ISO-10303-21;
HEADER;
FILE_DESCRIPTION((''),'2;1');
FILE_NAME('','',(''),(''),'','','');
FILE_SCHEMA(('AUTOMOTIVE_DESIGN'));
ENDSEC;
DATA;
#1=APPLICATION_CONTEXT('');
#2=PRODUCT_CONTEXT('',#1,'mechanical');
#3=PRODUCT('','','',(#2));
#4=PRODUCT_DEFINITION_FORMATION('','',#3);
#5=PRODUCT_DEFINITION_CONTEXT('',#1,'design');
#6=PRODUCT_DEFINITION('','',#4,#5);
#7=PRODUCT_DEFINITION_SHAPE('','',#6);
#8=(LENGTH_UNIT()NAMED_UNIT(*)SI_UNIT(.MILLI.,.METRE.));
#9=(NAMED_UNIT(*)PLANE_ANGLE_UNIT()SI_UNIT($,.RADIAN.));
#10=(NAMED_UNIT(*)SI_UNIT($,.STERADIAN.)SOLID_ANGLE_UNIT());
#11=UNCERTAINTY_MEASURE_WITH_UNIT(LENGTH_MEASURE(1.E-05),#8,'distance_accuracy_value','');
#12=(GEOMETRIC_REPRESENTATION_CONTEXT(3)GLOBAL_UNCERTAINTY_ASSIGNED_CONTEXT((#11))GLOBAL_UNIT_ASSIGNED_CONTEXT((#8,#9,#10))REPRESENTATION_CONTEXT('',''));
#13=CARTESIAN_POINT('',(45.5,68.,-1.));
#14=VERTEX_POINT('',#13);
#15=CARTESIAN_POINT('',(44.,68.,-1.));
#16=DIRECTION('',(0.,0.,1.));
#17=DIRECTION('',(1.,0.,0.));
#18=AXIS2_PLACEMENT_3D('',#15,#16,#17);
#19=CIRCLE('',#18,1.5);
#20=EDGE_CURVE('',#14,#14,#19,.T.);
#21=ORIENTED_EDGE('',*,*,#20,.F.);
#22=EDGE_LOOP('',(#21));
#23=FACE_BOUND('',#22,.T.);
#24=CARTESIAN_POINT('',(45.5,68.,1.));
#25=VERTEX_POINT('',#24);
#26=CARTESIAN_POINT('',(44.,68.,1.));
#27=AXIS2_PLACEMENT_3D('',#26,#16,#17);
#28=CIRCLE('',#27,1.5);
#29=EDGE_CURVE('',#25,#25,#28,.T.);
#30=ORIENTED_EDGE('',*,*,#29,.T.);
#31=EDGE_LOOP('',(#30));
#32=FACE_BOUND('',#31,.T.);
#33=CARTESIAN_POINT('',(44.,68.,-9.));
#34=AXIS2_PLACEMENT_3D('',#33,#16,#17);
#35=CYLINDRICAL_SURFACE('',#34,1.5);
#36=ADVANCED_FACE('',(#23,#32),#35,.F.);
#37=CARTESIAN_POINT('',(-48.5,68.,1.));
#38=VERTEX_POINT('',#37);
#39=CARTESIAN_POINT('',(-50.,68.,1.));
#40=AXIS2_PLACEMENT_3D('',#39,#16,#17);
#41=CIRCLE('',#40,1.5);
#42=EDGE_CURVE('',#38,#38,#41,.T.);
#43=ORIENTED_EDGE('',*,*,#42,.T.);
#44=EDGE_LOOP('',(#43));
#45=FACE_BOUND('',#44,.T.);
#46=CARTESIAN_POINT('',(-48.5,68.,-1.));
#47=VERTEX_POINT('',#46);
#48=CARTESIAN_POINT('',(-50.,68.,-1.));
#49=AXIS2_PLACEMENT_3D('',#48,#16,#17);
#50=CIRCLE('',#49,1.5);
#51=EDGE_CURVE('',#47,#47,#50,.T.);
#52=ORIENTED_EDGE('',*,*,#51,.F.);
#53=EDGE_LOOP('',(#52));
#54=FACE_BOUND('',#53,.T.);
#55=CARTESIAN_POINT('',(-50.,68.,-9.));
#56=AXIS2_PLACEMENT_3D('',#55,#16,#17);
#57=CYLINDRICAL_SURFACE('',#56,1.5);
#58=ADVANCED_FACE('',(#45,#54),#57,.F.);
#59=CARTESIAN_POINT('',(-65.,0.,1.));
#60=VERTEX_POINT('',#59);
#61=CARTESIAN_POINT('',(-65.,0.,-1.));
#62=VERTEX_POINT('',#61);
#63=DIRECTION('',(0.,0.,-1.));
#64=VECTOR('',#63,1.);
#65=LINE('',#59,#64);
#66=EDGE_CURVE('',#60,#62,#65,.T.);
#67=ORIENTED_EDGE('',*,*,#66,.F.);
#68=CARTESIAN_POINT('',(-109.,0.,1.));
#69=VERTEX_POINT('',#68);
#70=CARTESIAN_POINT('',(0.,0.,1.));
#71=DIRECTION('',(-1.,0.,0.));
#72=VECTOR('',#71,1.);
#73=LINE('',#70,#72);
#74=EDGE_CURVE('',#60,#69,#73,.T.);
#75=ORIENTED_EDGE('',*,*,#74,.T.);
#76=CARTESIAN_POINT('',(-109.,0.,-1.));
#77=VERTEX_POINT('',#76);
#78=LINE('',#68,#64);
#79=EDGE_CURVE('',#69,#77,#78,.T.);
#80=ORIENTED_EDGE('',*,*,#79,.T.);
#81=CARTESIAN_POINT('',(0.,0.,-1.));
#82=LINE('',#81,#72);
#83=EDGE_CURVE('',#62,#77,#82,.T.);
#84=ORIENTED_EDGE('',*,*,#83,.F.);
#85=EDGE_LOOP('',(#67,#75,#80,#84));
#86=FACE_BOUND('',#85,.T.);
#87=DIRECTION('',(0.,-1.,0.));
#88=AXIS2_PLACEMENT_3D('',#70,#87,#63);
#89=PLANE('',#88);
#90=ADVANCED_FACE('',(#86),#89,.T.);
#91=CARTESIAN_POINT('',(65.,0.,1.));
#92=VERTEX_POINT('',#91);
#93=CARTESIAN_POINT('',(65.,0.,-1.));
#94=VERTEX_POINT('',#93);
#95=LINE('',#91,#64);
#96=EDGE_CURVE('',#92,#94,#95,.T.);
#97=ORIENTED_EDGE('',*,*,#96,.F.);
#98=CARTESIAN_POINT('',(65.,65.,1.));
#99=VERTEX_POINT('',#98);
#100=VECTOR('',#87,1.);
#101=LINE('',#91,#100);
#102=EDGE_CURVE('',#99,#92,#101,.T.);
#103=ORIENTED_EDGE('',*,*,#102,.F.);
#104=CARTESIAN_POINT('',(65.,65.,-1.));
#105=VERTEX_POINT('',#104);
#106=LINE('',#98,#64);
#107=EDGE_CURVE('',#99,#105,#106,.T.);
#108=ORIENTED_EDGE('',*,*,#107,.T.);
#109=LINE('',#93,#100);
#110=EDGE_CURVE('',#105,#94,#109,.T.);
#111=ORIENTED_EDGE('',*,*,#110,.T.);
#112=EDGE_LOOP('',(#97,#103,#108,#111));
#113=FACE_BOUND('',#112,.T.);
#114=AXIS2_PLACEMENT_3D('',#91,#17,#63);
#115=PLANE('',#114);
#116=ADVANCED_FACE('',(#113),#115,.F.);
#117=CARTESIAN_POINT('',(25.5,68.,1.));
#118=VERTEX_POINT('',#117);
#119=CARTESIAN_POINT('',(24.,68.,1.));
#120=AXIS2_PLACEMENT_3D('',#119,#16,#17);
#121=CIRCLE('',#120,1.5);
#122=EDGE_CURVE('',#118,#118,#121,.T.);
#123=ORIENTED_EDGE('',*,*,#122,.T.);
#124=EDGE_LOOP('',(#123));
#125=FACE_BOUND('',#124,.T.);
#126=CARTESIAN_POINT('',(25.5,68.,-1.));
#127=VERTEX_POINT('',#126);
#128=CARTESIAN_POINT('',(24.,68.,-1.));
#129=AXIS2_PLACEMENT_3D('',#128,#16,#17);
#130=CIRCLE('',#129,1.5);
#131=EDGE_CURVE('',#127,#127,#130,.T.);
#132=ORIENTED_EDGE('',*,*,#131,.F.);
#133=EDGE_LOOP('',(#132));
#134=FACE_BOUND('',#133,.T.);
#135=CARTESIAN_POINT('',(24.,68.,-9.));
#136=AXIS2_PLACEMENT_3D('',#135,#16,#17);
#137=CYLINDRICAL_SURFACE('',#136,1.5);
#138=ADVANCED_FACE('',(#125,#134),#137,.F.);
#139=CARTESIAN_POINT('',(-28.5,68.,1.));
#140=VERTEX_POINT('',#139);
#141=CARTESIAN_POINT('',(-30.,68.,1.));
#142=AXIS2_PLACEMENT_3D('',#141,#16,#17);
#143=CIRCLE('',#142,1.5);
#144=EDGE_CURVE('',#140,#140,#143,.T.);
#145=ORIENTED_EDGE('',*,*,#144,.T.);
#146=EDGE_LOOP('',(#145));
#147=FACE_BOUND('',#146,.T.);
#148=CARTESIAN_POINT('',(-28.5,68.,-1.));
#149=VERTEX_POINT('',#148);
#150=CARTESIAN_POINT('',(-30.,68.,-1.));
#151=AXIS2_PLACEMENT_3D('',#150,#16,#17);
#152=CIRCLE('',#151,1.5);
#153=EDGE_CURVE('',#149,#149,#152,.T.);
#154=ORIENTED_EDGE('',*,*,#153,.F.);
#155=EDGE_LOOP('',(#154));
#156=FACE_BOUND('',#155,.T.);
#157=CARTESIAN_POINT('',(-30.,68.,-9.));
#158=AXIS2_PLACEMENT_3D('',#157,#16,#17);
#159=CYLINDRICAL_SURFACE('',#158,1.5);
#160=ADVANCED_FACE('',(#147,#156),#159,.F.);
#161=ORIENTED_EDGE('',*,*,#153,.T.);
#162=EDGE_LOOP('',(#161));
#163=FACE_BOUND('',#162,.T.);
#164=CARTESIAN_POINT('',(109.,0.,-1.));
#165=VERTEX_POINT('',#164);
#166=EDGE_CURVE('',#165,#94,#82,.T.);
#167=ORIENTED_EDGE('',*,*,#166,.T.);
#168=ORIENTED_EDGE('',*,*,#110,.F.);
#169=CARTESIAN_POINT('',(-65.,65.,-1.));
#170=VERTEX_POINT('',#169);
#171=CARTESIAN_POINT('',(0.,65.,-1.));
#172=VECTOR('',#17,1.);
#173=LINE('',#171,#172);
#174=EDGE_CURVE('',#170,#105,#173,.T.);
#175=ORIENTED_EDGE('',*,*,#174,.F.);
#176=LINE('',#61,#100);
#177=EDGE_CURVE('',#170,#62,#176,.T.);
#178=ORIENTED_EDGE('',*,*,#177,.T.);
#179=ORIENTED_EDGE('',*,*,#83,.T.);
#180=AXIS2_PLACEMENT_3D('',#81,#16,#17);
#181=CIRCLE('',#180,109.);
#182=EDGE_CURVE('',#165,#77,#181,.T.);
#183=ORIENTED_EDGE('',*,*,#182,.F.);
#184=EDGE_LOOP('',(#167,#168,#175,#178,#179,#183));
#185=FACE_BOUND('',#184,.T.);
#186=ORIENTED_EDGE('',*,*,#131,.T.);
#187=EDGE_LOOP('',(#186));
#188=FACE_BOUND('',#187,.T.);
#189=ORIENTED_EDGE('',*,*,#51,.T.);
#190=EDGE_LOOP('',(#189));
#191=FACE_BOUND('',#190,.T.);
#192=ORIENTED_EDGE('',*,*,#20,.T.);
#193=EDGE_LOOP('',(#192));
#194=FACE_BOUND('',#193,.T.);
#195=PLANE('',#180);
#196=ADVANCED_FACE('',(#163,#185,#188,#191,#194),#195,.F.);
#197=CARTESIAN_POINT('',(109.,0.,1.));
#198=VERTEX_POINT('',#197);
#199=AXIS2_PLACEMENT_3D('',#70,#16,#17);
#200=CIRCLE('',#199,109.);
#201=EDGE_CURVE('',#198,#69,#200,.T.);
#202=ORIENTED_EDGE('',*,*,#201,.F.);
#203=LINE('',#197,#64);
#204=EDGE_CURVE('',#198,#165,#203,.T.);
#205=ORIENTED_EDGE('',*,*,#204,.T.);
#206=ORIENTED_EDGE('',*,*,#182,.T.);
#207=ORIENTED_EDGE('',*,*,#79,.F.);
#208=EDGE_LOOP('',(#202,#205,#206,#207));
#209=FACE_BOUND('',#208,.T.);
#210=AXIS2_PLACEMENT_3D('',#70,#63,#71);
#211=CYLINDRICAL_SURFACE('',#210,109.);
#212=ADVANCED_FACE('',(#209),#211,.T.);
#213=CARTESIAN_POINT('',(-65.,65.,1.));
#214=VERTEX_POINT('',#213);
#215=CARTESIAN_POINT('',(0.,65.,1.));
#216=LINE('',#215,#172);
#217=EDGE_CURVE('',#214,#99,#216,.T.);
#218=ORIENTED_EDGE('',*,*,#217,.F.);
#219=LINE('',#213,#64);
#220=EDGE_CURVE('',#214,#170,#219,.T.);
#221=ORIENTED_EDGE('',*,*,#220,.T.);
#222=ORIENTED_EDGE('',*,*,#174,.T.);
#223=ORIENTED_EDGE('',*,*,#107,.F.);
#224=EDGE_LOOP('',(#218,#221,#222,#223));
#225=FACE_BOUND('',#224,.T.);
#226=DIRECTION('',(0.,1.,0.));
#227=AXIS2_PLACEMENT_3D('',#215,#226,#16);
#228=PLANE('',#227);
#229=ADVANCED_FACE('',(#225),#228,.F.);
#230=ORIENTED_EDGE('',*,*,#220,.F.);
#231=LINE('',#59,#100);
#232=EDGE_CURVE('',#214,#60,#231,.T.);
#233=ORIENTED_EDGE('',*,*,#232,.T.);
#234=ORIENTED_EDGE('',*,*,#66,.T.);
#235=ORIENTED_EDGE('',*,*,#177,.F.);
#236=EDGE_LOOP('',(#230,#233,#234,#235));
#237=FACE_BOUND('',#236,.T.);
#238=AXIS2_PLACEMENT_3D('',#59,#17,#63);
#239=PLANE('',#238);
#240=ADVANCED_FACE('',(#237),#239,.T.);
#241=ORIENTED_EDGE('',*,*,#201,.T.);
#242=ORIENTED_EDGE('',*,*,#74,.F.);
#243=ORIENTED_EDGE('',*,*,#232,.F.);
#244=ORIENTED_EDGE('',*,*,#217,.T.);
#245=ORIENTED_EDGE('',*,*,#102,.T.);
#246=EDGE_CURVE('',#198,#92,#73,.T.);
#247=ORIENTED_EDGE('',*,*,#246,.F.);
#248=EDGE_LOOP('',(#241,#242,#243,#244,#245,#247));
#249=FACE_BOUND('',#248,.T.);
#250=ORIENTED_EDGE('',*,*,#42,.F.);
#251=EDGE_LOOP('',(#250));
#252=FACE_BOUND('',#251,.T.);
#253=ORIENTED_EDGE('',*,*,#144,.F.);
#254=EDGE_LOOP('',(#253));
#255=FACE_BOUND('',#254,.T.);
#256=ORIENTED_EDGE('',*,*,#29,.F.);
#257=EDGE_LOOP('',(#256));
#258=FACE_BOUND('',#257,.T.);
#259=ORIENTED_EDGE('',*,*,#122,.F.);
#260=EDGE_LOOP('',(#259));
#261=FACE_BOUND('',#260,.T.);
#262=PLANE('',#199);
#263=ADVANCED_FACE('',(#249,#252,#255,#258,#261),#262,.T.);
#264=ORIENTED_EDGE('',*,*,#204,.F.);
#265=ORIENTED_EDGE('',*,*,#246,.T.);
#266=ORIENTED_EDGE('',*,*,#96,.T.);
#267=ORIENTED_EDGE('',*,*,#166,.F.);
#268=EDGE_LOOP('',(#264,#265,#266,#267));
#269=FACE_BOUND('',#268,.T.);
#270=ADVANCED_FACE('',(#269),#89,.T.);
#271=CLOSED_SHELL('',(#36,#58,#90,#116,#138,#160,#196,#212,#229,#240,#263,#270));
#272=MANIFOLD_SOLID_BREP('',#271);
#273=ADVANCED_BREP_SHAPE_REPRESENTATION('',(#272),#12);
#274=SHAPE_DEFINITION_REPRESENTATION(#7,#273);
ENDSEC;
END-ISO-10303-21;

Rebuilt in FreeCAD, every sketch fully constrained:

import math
import FreeCAD as App
import Part
import Sketcher
Q = App.Units.Quantity

doc = App.newDocument("Part")
body = doc.addObject("PartDesign::Body", "Body")

# Sketch on XY plane
sketch1 = body.newObject("Sketcher::SketchObject", "Sketch")
sketch1.AttachmentSupport = (doc.getObject("XY_Plane"), [""])
sketch1.MapMode = "FlatFace"
sketch1.addGeometry([
    Part.ArcOfCircle(Part.Circle(App.Vector(0, 0, 0), App.Vector(0, 0, 1), 109), math.radians(0), math.radians(180)),  # 0
    Part.LineSegment(App.Vector(-109, 0, 0), App.Vector(-65, 0, 0)),  # 1
    Part.LineSegment(App.Vector(-65, 0, 0), App.Vector(-65, 65, 0)),  # 2
    Part.LineSegment(App.Vector(-65, 65, 0), App.Vector(65, 65, 0)),  # 3
    Part.LineSegment(App.Vector(65, 65, 0), App.Vector(65, 0, 0)),  # 4
    Part.LineSegment(App.Vector(65, 0, 0), App.Vector(109, 0, 0)),  # 5
], False)
sketch1.addConstraint([
    Sketcher.Constraint("Coincident", 0, 2, 1, 1),
    Sketcher.Constraint("Coincident", 1, 2, 2, 1),
    Sketcher.Constraint("Coincident", 2, 2, 3, 1),
    Sketcher.Constraint("Coincident", 3, 2, 4, 1),
    Sketcher.Constraint("Coincident", 4, 2, 5, 1),
    Sketcher.Constraint("Coincident", 5, 2, 0, 1),
    Sketcher.Constraint("Horizontal", 1),
    Sketcher.Constraint("Vertical", 2),
    Sketcher.Constraint("Horizontal", 3),
    Sketcher.Constraint("Vertical", 4),
    Sketcher.Constraint("Horizontal", 5),
    Sketcher.Constraint("Coincident", 0, 3, -1, 1),
    Sketcher.Constraint("Symmetric", 1, 2, 4, 2, -1, 1),
    Sketcher.Constraint("PointOnObject", 0, 2, -1),
    Sketcher.Constraint("Radius", 0, Q("109 mm")),
    Sketcher.Constraint("DistanceX", 1, 1, 1, 2, Q("44 mm")),
    Sketcher.Constraint("DistanceY", 2, 1, 2, 2, Q("65 mm")),
])
pad1 = body.newObject("PartDesign::Pad", "Pad")
pad1.Profile = sketch1
pad1.Length = 2
pad1.Midplane = True

# Sketch on XY plane
sketch2 = body.newObject("Sketcher::SketchObject", "Sketch001")
sketch2.AttachmentSupport = (doc.getObject("XY_Plane"), [""])
sketch2.MapMode = "FlatFace"
sketch2.AttachmentOffset = App.Placement(App.Vector(0, 0, 1), App.Rotation())
sketch2.addGeometry([
    Part.Circle(App.Vector(44, 68, 0), App.Vector(0, 0, 1), 1.5),
    Part.Circle(App.Vector(24, 68, 0), App.Vector(0, 0, 1), 1.5),
    Part.Circle(App.Vector(-30, 68, 0), App.Vector(0, 0, 1), 1.5),
    Part.Circle(App.Vector(-50, 68, 0), App.Vector(0, 0, 1), 1.5),
], False)
sketch2.addConstraint([
    Sketcher.Constraint("Equal", 0, 1),
    Sketcher.Constraint("Equal", 1, 2),
    Sketcher.Constraint("Equal", 2, 3),
    Sketcher.Constraint("Horizontal", 0, 3, 1, 3),
    Sketcher.Constraint("Horizontal", 1, 3, 2, 3),
    Sketcher.Constraint("Horizontal", 2, 3, 3, 3),
    Sketcher.Constraint("Diameter", 0, Q("3 mm")),
    Sketcher.Constraint("DistanceX", -1, 1, 0, 3, Q("44 mm")),
    Sketcher.Constraint("DistanceY", -1, 1, 0, 3, Q("68 mm")),
    Sketcher.Constraint("DistanceX", -1, 1, 1, 3, Q("24 mm")),
    Sketcher.Constraint("DistanceX", 2, 3, -1, 1, Q("30 mm")),
    Sketcher.Constraint("DistanceX", 3, 3, -1, 1, Q("50 mm")),
])
pocket1 = body.newObject("PartDesign::Pocket", "Pocket")
pocket1.Profile = sketch2
pocket1.Length = 10

doc.recompute()
